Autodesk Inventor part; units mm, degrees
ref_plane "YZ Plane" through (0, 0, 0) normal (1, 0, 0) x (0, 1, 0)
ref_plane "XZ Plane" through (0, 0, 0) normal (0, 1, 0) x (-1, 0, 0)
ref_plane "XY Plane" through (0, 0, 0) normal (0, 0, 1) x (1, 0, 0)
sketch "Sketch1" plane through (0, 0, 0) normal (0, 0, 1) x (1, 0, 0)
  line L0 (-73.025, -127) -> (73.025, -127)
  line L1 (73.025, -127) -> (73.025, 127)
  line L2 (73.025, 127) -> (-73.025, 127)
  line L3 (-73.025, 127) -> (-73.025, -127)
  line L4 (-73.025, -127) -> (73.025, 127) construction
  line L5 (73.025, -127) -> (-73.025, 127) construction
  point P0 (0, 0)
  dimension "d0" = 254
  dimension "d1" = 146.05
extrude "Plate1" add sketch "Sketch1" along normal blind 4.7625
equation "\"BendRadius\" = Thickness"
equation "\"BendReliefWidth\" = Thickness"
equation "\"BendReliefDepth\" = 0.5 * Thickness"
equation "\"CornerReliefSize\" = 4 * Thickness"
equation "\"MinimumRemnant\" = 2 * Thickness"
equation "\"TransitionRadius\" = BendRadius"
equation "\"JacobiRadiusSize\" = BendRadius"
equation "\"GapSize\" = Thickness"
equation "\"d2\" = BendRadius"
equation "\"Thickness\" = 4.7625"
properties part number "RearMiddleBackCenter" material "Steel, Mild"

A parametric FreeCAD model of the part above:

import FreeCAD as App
import Part
import Sketcher
from FreeCAD import Vector
Q = App.Units.Quantity


def add_polygon(sketch, points):
    """Adds a closed chain of lines whose ends are joined by coincident constraints."""
    first, n = sketch.GeometryCount, len(points)
    for a, b in zip(points, points[1:] + points[:1]):
        sketch.addGeometry(Part.LineSegment(App.Vector(*a, 0), App.Vector(*b, 0)), False)
    for i in range(n):
        sketch.addConstraint(Sketcher.Constraint("Coincident", first + i, 2, first + (i + 1) % n, 1))

doc = App.newDocument("Part")
body = doc.addObject("PartDesign::Body", "Body")

# Sketch on XY plane
sketch1 = body.newObject("Sketcher::SketchObject", "Sketch")
sketch1.AttachmentSupport = (doc.getObject("XY_Plane"), [""])
sketch1.MapMode = "FlatFace"
add_polygon(sketch1, [(-73, 127), (-73, -127), (73, -127), (73, 127)])  # lines 0-3
sketch1.addConstraint([
    Sketcher.Constraint("Vertical", 0),
    Sketcher.Constraint("Horizontal", 1),
    Sketcher.Constraint("Vertical", 2),
    Sketcher.Constraint("Horizontal", 3),
    Sketcher.Constraint("Symmetric", 0, 2, 2, 2, -1, 1),
    Sketcher.Constraint("DistanceY", 0, 2, 0, 1, Q("10 in")),
    Sketcher.Constraint("DistanceX", 1, 1, 1, 2, Q("5.75 in")),
])
pad1 = body.newObject("PartDesign::Pad", "Pad")
pad1.Profile = sketch1
pad1.Length = Q("0.1875 in")

doc.recompute()
